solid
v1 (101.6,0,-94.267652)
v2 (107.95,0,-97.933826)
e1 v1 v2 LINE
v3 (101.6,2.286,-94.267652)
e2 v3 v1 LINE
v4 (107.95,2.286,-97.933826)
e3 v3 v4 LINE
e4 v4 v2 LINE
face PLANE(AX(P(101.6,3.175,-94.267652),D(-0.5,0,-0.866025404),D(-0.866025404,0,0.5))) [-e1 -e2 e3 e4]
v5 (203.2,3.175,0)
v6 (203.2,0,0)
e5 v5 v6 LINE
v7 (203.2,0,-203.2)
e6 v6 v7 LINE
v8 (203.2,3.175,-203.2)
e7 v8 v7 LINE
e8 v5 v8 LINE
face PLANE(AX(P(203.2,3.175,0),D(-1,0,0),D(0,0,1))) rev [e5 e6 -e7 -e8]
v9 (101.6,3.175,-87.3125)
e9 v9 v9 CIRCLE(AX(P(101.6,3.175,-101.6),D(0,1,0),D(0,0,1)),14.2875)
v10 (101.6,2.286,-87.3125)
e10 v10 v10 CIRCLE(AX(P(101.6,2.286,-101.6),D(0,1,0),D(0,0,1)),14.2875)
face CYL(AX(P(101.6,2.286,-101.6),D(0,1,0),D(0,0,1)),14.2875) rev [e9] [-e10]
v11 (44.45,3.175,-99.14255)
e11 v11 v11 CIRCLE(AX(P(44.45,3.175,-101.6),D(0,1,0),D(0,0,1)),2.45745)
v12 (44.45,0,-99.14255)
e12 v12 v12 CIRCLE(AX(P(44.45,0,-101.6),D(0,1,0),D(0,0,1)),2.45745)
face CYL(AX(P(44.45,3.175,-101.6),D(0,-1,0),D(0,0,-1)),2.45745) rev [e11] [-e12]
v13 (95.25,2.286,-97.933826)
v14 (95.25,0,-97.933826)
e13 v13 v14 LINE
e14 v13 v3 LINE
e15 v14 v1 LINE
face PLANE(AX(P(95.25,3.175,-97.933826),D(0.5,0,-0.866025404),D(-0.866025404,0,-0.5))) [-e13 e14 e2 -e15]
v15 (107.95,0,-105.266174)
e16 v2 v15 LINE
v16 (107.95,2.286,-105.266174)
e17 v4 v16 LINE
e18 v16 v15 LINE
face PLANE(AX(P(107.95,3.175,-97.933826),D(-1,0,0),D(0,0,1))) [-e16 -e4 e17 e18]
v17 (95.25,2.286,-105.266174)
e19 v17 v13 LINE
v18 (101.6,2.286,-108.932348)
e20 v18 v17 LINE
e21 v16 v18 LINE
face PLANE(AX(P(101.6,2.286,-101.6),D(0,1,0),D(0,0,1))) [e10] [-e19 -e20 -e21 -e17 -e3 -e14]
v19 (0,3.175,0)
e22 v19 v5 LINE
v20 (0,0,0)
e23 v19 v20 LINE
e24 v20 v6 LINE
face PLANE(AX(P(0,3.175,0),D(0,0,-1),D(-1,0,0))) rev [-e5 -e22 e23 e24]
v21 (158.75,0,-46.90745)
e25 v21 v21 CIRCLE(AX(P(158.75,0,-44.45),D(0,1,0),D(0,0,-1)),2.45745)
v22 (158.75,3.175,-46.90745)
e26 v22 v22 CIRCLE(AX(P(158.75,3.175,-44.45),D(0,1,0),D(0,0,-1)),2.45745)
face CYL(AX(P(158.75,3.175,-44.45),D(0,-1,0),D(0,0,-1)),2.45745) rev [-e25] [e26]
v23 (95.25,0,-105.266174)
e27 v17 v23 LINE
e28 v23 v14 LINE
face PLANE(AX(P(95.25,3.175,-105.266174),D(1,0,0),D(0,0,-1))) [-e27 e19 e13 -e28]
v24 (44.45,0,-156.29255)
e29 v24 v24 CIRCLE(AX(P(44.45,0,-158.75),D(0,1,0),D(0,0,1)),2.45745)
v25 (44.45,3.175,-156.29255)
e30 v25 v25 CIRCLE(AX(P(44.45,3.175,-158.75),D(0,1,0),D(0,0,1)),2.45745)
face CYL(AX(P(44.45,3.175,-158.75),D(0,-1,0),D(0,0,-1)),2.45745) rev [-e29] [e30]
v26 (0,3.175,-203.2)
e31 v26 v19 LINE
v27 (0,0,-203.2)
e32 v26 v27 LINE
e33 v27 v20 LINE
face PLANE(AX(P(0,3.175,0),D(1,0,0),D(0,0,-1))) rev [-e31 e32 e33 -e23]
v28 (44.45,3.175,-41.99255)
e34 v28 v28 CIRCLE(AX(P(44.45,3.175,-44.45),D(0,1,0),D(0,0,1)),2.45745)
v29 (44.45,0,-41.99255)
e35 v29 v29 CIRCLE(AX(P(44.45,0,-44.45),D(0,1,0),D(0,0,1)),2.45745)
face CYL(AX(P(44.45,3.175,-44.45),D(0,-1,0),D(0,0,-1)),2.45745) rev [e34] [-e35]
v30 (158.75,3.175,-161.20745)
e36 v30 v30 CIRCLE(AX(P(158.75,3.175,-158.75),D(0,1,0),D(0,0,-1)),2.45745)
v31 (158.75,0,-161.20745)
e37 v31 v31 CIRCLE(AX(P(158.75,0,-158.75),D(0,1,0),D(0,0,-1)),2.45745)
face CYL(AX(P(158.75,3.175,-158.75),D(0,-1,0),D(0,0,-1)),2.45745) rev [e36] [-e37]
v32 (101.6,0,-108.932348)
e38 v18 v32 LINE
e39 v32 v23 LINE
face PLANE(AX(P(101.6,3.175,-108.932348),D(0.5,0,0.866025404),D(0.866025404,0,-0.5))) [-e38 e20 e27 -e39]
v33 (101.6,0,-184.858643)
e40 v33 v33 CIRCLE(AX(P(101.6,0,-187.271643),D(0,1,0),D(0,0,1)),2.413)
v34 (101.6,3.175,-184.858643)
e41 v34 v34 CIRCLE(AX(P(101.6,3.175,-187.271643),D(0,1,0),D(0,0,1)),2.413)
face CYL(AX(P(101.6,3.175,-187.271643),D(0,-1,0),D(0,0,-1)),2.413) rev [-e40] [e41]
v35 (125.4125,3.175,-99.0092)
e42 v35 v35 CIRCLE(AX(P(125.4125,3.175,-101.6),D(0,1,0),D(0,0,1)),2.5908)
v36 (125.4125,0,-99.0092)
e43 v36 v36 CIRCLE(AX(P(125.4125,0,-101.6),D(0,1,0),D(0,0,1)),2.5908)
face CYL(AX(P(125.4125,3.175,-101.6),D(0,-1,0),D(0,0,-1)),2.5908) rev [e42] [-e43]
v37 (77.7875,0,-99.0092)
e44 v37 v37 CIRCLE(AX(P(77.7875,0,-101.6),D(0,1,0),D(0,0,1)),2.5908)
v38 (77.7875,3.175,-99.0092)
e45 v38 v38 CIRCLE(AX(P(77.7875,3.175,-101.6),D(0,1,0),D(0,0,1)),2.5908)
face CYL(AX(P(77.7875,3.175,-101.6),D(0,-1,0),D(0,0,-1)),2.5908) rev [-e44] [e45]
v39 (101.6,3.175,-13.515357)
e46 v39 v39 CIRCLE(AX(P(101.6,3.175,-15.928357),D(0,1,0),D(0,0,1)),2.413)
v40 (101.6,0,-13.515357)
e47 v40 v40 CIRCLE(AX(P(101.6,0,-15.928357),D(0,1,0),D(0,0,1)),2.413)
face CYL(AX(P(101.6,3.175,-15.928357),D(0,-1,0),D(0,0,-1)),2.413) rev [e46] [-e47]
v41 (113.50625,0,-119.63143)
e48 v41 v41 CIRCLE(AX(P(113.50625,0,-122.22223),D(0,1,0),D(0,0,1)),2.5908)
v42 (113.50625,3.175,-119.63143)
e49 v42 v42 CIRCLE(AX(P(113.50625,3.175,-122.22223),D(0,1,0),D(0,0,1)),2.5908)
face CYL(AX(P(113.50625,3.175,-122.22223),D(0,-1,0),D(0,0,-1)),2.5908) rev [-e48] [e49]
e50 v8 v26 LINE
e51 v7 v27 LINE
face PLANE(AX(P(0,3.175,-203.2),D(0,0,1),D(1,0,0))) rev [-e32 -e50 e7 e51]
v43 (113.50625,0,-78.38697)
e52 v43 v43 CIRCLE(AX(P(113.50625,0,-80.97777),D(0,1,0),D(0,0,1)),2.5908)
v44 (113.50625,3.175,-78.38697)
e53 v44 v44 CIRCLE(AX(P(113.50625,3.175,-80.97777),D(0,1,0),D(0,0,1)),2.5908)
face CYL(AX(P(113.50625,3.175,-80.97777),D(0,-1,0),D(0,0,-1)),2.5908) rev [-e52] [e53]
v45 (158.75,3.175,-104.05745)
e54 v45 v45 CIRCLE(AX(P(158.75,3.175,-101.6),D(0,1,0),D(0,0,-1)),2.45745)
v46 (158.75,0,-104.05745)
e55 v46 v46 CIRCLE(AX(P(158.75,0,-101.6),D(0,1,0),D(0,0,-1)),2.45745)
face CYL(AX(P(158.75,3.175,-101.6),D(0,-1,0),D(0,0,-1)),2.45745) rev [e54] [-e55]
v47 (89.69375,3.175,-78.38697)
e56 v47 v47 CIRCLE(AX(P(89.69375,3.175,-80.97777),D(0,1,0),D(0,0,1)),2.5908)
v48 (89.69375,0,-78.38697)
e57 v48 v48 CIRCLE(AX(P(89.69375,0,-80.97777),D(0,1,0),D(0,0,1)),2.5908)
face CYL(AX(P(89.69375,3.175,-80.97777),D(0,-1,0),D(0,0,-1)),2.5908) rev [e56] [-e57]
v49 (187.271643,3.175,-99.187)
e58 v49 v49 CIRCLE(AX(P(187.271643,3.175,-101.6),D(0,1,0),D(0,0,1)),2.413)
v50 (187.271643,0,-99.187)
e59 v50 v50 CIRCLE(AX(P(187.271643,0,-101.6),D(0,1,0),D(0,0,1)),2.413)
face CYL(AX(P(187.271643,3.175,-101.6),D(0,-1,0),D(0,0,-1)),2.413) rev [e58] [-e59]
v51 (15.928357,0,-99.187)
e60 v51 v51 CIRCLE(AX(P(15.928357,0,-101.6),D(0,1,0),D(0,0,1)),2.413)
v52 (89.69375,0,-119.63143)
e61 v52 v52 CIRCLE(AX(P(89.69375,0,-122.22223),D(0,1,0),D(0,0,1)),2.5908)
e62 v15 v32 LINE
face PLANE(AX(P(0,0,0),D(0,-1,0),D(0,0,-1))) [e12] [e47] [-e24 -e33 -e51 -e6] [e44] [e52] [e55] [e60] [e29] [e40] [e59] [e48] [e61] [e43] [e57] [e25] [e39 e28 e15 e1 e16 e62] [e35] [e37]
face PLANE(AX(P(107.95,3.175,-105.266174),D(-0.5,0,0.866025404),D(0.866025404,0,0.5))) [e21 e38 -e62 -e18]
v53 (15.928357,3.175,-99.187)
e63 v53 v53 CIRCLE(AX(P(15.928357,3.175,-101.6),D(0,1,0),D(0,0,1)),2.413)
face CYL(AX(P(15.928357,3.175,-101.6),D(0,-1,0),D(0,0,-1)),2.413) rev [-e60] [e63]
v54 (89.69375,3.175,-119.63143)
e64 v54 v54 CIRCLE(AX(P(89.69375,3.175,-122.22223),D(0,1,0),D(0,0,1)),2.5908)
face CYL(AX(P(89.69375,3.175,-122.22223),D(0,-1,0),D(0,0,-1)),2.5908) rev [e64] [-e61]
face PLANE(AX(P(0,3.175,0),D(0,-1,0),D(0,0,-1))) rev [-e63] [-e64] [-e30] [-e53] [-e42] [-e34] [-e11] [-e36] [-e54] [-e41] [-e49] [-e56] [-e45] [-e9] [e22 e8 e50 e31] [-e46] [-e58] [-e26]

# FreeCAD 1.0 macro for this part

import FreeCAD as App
import Part
import Sketcher

V = App.Vector
Q = App.Units.Quantity


def add_polygon(sketch, points):
    """Adds a closed chain of lines whose ends are joined by coincident constraints."""
    first, n = sketch.GeometryCount, len(points)
    for a, b in zip(points, points[1:] + points[:1]):
        sketch.addGeometry(Part.LineSegment(App.Vector(*a, 0), App.Vector(*b, 0)), False)
    for i in range(n):
        sketch.addConstraint(Sketcher.Constraint("Coincident", first + i, 2, first + (i + 1) % n, 1))

doc = App.newDocument("Part")
params = doc.addObject("Spreadsheet::Sheet", "Params")
for row, (alias, value) in enumerate([
    ("sketch1_diameter", "0.19 in"),
    ("sketch1_width", "8 in"),
    ("sketch1_diameter2", "0.204 in"),
    ("pad1_length", "0.125 in"),
    ("sketch2_diameter", "1.125 in"),
    ("pocket1_length", "0.035 in"),
], start=1):
    params.set(f"A{row}", alias)
    params.set(f"B{row}", "=" + value)
    params.setAlias(f"B{row}", alias)

body = doc.addObject("PartDesign::Body", "Body")

# Sketch on XZ plane
sketch1 = doc.addObject("Sketcher::SketchObject", "Sketch")
body.addObject(sketch1)
sketch1.AttachmentSupport = (doc.XZ_Plane, [""])
sketch1.MapMode = "FlatFace"
add_polygon(sketch1, [(0, -203.2), (0, 0), (203.2, 0), (203.2, -203.2)])  # lines 0-3
sketch1.addGeometry(Part.Circle(V(44.5, -44.5, 0), V(0, 0, 1), 2.5), False)  # 4
sketch1.addGeometry(Part.Circle(V(101.6, -15.9, 0), V(0, 0, 1), 2.4), False)  # 5
sketch1.addGeometry(Part.Circle(V(15.9, -101.6, 0), V(0, 0, 1), 2.4), False)  # 6
sketch1.addGeometry(Part.Circle(V(44.5, -101.6, 0), V(0, 0, 1), 2.5), False)  # 7
sketch1.addGeometry(Part.Circle(V(77.8, -101.6, 0), V(0, 0, 1), 2.6), False)  # 8
sketch1.addGeometry(Part.Circle(V(89.7, -81, 0), V(0, 0, 1), 2.6), False)  # 9
sketch1.addGeometry(Part.Circle(V(158.8, -44.5, 0), V(0, 0, 1), 2.5), False)  # 10
sketch1.addGeometry(Part.Circle(V(113.5, -81, 0), V(0, 0, 1), 2.6), False)  # 11
add_polygon(sketch1, [(101.6, -108.9), (108, -105.3), (108, -97.9), (101.6, -94.3), (95.2, -97.9), (95.2, -105.3)])  # lines 12-17
sketch1.addGeometry(Part.Circle(V(125.4, -101.6, 0), V(0, 0, 1), 2.6), False)  # 18
sketch1.addGeometry(Part.Circle(V(158.8, -101.6, 0), V(0, 0, 1), 2.5), False)  # 19
sketch1.addGeometry(Part.Circle(V(187.3, -101.6, 0), V(0, 0, 1), 2.4), False)  # 20
sketch1.addGeometry(Part.Circle(V(89.7, -122.2, 0), V(0, 0, 1), 2.6), False)  # 21
sketch1.addGeometry(Part.Circle(V(44.5, -158.8, 0), V(0, 0, 1), 2.5), False)  # 22
sketch1.addGeometry(Part.Circle(V(101.6, -187.3, 0), V(0, 0, 1), 2.4), False)  # 23
sketch1.addGeometry(Part.Circle(V(113.5, -122.2, 0), V(0, 0, 1), 2.6), False)  # 24
sketch1.addGeometry(Part.Circle(V(158.8, -158.8, 0), V(0, 0, 1), 2.5), False)  # 25
sketch1.addConstraint([
    Sketcher.Constraint("Vertical", 0),
    Sketcher.Constraint("Horizontal", 1),
    Sketcher.Constraint("Vertical", 2),
    Sketcher.Constraint("Horizontal", 3),
    Sketcher.Constraint("Vertical", 13),
    Sketcher.Constraint("Vertical", 16),
    Sketcher.Constraint("Coincident", 0, 2, -1, 1),
    Sketcher.Constraint("Equal", 5, 6),
    Sketcher.Constraint("Equal", 4, 7),
    Sketcher.Constraint("Equal", 8, 9),
    Sketcher.Constraint("Equal", 7, 10),
    Sketcher.Constraint("Equal", 9, 11),
    Sketcher.Constraint("Equal", 11, 18),
    Sketcher.Constraint("Equal", 10, 19),
    Sketcher.Constraint("Equal", 6, 20),
    Sketcher.Constraint("Equal", 18, 21),
    Sketcher.Constraint("Equal", 19, 22),
    Sketcher.Constraint("Equal", 20, 23),
    Sketcher.Constraint("Equal", 21, 24),
    Sketcher.Constraint("Equal", 22, 25),
    Sketcher.Constraint("Parallel", 12, 15),
    Sketcher.Constraint("Parallel", 14, 17),
    Sketcher.Constraint("Horizontal", 6, 3, 7, 3),
    Sketcher.Constraint("Horizontal", 7, 3, 8, 3),
    Sketcher.Constraint("Horizontal", 4, 3, 10, 3),
    Sketcher.Constraint("Horizontal", 9, 3, 11, 3),
    Sketcher.Constraint("Horizontal", 8, 3, 18, 3),
    Sketcher.Constraint("Horizontal", 18, 3, 19, 3),
    Sketcher.Constraint("Horizontal", 19, 3, 20, 3),
    Sketcher.Constraint("Horizontal", 21, 3, 24, 3),
    Sketcher.Constraint("Horizontal", 22, 3, 25, 3),
    Sketcher.Constraint("Horizontal", 13, 2, 15, 2),
    Sketcher.Constraint("Horizontal", 12, 2, 16, 2),
    Sketcher.Constraint("Vertical", 4, 3, 7, 3),
    Sketcher.Constraint("Vertical", 10, 3, 19, 3),
    Sketcher.Constraint("Vertical", 9, 3, 21, 3),
    Sketcher.Constraint("Vertical", 7, 3, 22, 3),
    Sketcher.Constraint("Vertical", 5, 3, 23, 3),
    Sketcher.Constraint("Vertical", 11, 3, 24, 3),
    Sketcher.Constraint("Vertical", 19, 3, 25, 3),
    Sketcher.Constraint("Vertical", 23, 3, 14, 2),
    Sketcher.Constraint("Vertical", 14, 2, 17, 2),
    Sketcher.Constraint("Equal", 3, 0),
    Sketcher.Constraint("Diameter", 5, Q("0.19 in")),
    Sketcher.Constraint("DistanceX", 1, 1, 1, 2, Q("8 in")),
    Sketcher.Constraint("Diameter", 8, Q("0.204 in")),
    Sketcher.Constraint("DistanceX", -1, 1, 5, 3, Q("4 in")),
    Sketcher.Constraint("DistanceY", 6, 3, -1, 1, Q("4 in")),
    Sketcher.Constraint("Angle", 12, Q("30 deg")),
    Sketcher.Constraint("Diameter", 4, Q("0.1935 in")),
    Sketcher.Constraint("DistanceX", 4, 3, 10, 3, Q("4.5 in")),
    Sketcher.Constraint("DistanceX", 15, 2, 13, 2, Q("0.5 in")),
    Sketcher.Constraint("DistanceX", -1, 1, 4, 3, Q("1.75 in")),
    Sketcher.Constraint("DistanceY", 4, 3, -1, 1, Q("1.75 in")),
    Sketcher.Constraint("DistanceY", 22, 3, -1, 1, Q("6.25 in")),
    Sketcher.Constraint("DistanceX", -1, 1, 8, 3, Q("3.0625 in")),
    Sketcher.Constraint("DistanceX", -1, 1, 9, 3, Q("3.53125 in")),
    Sketcher.Constraint("DistanceX", -1, 1, 11, 3, Q("4.46875 in")),
    Sketcher.Constraint("DistanceX", -1, 1, 18, 3, Q("4.9375 in")),
    Sketcher.Constraint("DistanceY", 13, 1, 13, 2, 7.332348),
    Sketcher.Constraint("DistanceY", 9, 3, -1, 1, 80.97777),
    Sketcher.Constraint("DistanceY", 21, 3, -1, 1, 122.22223),
    Sketcher.Constraint("DistanceY", 14, 2, -1, 1, 94.267652),
    Sketcher.Constraint("DistanceY", 5, 3, -1, 1, 15.928357),
    Sketcher.Constraint("DistanceX", -1, 1, 6, 3, 15.928357),
    Sketcher.Constraint("DistanceX", -1, 1, 20, 3, 187.271643),
    Sketcher.Constraint("DistanceY", 23, 3, -1, 1, 187.271643),
])
sketch1.setExpression("Constraints[53]", "Params.sketch1_diameter")
sketch1.setExpression("Constraints[54]", "Params.sketch1_width")
sketch1.setExpression("Constraints[55]", "Params.sketch1_diameter2")
pad1 = doc.addObject("PartDesign::Pad", "Pad")
body.addObject(pad1)
pad1.Profile = sketch1
pad1.setExpression("Length", "Params.pad1_length")
pad1.Reversed = True

# Sketch on XZ plane
sketch2 = doc.addObject("Sketcher::SketchObject", "Sketch001")
body.addObject(sketch2)
sketch2.AttachmentSupport = (doc.XZ_Plane, [""])
sketch2.MapMode = "FlatFace"
sketch2.AttachmentOffset = App.Placement(V(0, 0, -0.125 * 25.4), App.Rotation())
sketch2.addGeometry(Part.Circle(V(102, -102, 0), V(0, 0, 1), 14), False)
sketch2.addConstraint([
    Sketcher.Constraint("Diameter", 0, Q("1.125 in")),
    Sketcher.Constraint("DistanceX", -1, 1, 0, 3, Q("4 in")),
    Sketcher.Constraint("DistanceY", 0, 3, -1, 1, Q("4 in")),
])
sketch2.setExpression("Constraints[0]", "Params.sketch2_diameter")
pocket1 = doc.addObject("PartDesign::Pocket", "Pocket")
body.addObject(pocket1)
pocket1.Profile = sketch2
pocket1.setExpression("Length", "Params.pocket1_length")
pocket1.Reversed = True

doc.recompute()
